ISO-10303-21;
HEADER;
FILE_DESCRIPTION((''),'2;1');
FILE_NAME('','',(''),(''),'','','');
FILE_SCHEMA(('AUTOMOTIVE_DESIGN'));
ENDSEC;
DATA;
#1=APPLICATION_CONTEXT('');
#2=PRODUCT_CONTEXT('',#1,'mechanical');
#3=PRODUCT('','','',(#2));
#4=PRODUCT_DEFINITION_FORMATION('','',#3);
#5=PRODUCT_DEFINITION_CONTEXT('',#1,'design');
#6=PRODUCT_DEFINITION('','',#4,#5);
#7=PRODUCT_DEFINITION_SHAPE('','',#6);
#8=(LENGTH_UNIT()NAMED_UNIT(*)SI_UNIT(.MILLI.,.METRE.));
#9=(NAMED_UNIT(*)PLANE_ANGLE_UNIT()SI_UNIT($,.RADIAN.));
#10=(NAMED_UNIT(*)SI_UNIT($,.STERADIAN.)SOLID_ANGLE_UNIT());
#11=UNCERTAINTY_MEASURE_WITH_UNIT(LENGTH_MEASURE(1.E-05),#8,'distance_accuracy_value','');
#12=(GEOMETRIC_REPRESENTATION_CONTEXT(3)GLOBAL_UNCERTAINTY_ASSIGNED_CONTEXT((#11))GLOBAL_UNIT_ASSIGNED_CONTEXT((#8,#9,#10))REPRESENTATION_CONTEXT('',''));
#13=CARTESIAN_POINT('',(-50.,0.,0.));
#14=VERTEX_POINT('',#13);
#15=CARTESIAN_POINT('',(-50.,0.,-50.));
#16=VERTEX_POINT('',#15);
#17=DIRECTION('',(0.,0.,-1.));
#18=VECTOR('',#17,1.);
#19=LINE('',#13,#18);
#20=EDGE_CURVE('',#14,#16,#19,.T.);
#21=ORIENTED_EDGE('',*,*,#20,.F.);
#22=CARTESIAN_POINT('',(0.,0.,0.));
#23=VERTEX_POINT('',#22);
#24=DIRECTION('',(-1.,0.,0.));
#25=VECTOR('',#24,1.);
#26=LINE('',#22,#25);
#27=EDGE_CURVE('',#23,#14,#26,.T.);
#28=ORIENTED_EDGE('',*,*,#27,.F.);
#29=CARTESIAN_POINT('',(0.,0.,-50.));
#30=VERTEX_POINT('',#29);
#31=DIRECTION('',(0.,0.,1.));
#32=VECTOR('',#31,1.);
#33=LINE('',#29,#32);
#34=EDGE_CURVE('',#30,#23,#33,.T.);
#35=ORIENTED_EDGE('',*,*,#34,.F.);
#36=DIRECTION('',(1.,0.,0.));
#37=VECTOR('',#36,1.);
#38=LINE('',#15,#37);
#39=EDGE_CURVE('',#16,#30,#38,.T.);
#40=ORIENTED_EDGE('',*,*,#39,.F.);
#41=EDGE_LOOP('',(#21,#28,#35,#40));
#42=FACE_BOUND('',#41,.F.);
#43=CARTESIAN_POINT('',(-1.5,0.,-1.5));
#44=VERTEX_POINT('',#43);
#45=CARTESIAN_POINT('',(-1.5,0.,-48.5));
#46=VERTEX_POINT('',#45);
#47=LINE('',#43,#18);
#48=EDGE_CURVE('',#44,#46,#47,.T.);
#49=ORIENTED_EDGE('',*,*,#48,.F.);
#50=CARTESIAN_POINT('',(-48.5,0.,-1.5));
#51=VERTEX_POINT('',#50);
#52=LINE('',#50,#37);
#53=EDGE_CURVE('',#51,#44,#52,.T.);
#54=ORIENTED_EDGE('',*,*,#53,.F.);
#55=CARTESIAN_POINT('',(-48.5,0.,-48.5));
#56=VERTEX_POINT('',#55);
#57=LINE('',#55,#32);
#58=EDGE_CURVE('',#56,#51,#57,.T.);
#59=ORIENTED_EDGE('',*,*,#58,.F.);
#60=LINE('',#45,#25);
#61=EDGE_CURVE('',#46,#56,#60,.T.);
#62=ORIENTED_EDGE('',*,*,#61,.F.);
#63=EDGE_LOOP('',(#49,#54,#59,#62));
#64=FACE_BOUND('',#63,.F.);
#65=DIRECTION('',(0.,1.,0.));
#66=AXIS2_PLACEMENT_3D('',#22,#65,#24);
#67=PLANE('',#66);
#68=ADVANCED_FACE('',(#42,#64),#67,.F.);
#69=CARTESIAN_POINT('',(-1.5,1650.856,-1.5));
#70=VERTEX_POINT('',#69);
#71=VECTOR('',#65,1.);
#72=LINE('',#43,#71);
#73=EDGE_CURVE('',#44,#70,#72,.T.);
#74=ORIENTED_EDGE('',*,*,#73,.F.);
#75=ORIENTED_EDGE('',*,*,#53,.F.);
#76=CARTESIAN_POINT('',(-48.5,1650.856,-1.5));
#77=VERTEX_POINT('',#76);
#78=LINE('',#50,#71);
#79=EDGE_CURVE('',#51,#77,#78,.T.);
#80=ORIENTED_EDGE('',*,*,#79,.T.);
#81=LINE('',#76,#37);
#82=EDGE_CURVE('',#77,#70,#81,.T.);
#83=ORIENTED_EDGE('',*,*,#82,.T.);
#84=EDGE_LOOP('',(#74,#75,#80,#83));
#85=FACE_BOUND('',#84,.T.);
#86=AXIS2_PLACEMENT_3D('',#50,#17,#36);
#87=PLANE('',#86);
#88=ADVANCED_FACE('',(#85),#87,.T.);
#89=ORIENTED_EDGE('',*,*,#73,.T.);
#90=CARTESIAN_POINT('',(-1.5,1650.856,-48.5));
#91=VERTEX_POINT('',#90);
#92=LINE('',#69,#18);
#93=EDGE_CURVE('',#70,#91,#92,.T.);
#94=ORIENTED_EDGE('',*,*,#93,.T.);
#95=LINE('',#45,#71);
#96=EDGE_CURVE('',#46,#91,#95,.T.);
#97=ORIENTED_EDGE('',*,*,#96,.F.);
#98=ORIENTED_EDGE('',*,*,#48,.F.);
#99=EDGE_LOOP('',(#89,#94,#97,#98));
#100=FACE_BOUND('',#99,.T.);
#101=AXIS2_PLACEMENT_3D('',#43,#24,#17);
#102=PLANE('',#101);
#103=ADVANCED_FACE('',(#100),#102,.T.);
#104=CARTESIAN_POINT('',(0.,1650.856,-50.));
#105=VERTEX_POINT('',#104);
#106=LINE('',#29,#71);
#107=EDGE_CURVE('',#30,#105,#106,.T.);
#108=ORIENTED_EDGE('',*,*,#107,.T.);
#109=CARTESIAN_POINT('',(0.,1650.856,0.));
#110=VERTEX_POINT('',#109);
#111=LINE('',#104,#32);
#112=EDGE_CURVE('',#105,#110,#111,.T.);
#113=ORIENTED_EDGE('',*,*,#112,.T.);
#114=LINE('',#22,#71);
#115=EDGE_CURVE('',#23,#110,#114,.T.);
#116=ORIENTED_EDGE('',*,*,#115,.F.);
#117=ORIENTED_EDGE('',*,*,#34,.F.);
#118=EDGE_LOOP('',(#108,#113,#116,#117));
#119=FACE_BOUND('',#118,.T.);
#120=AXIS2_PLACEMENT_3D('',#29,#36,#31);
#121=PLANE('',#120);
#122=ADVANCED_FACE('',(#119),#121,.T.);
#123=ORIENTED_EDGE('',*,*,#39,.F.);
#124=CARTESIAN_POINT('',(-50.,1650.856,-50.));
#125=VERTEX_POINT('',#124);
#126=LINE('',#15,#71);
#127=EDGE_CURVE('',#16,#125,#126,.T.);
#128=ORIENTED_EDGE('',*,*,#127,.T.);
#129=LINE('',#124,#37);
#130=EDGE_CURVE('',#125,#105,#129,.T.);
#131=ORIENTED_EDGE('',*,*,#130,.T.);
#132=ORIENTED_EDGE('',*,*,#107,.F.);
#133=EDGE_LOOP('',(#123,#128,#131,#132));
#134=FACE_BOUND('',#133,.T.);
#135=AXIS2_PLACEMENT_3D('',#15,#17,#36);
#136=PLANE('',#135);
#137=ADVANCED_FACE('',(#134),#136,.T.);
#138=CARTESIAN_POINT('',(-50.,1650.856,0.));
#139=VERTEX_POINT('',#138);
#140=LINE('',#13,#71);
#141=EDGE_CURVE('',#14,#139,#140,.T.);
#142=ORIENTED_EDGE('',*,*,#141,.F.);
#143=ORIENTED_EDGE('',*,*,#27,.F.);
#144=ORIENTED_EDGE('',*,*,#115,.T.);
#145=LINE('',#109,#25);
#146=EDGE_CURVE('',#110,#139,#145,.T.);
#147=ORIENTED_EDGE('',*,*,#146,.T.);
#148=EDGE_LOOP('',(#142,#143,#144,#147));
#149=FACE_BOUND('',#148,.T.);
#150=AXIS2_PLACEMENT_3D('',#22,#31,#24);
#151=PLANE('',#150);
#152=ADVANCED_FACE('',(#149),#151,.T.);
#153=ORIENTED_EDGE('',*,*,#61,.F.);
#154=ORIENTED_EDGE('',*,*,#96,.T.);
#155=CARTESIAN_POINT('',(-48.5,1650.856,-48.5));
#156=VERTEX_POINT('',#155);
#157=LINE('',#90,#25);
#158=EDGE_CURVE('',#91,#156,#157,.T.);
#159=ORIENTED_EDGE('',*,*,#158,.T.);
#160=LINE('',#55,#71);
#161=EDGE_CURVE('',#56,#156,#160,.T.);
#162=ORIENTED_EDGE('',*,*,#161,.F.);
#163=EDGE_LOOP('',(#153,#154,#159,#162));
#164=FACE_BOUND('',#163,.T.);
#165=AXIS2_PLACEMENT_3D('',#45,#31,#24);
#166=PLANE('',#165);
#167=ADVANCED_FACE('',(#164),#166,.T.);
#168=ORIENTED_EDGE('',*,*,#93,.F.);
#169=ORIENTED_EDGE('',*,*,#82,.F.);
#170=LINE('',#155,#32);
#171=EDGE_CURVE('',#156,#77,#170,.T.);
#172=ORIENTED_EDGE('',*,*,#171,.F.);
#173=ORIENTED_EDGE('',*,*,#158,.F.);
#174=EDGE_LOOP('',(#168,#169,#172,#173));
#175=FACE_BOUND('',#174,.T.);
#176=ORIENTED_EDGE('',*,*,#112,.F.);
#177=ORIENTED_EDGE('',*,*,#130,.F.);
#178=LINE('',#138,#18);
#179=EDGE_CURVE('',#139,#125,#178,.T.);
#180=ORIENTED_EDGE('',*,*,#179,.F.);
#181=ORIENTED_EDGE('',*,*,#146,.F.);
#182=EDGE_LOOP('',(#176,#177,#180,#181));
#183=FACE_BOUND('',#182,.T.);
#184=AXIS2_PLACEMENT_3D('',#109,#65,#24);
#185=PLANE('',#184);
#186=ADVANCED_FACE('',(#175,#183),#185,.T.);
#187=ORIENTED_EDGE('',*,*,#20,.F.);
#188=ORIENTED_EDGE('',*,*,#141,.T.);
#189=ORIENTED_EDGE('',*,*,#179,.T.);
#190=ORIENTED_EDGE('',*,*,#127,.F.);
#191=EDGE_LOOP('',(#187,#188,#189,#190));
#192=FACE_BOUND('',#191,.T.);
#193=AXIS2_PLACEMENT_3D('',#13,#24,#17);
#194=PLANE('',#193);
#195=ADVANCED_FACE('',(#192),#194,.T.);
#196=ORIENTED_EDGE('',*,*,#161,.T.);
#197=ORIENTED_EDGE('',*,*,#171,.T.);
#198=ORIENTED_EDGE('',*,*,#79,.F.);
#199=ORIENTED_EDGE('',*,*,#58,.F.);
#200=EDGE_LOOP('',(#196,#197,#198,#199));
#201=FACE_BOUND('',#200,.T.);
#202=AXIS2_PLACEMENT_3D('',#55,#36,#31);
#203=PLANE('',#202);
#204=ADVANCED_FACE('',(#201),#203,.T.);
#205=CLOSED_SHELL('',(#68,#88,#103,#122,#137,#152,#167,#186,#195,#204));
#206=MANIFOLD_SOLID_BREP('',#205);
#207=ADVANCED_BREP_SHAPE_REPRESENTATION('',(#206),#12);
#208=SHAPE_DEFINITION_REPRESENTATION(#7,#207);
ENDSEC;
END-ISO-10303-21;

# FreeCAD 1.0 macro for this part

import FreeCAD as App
import Part
import Sketcher


def add_polygon(sketch, points):
    """Adds a closed chain of lines whose ends are joined by coincident constraints."""
    first, n = sketch.GeometryCount, len(points)
    for a, b in zip(points, points[1:] + points[:1]):
        sketch.addGeometry(Part.LineSegment(App.Vector(*a, 0), App.Vector(*b, 0)), False)
    for i in range(n):
        sketch.addConstraint(Sketcher.Constraint("Coincident", first + i, 2, first + (i + 1) % n, 1))

doc = App.newDocument("Part")
params = doc.addObject("Spreadsheet::Sheet", "Params")
for row, (alias, value) in enumerate([
    ("sketch1_width", "50 mm"),
    ("pad1_length", "1650.856 mm"),
], start=1):
    params.set(f"A{row}", alias)
    params.set(f"B{row}", "=" + value)
    params.setAlias(f"B{row}", alias)

body = doc.addObject("PartDesign::Body", "Body")

sketch1 = body.newObject("Sketcher::SketchObject", "Sketch")
sketch1.AttachmentSupport = (doc.getObject("XZ_Plane"), [""])
sketch1.MapMode = "FlatFace"
add_polygon(sketch1, [(-50, 0), (0, 0), (0, -50), (-50, -50)])
add_polygon(sketch1, [(-48, -48), (-2, -48), (-2, -2), (-48, -2)])
sketch1.addConstraint([
    Sketcher.Constraint("Horizontal", 0),
    Sketcher.Constraint("Vertical", 1),
    Sketcher.Constraint("Horizontal", 2),
    Sketcher.Constraint("Vertical", 3),
    Sketcher.Constraint("Horizontal", 4),
    Sketcher.Constraint("Vertical", 5),
    Sketcher.Constraint("Horizontal", 6),
    Sketcher.Constraint("Vertical", 7),
    Sketcher.Constraint("Coincident", 0, 2, -1, 1),
    Sketcher.Constraint("Equal", 2, 1),
    Sketcher.Constraint("Equal", 6, 5),
    Sketcher.Constraint("DistanceX", 0, 1, 0, 2, 50.0),
    Sketcher.Constraint("DistanceX", 4, 2, -1, 1, 1.5),
    Sketcher.Constraint("DistanceY", 5, 2, -1, 1, 1.5),
    Sketcher.Constraint("DistanceY", 1, 2, 4, 2, 1.5),
])
sketch1.setExpression("Constraints[19]", "Params.sketch1_width")
pad1 = body.newObject("PartDesign::Pad", "Pad")
pad1.Profile = sketch1
pad1.setExpression("Length", "Params.pad1_length")
pad1.Reversed = True

doc.recompute()
